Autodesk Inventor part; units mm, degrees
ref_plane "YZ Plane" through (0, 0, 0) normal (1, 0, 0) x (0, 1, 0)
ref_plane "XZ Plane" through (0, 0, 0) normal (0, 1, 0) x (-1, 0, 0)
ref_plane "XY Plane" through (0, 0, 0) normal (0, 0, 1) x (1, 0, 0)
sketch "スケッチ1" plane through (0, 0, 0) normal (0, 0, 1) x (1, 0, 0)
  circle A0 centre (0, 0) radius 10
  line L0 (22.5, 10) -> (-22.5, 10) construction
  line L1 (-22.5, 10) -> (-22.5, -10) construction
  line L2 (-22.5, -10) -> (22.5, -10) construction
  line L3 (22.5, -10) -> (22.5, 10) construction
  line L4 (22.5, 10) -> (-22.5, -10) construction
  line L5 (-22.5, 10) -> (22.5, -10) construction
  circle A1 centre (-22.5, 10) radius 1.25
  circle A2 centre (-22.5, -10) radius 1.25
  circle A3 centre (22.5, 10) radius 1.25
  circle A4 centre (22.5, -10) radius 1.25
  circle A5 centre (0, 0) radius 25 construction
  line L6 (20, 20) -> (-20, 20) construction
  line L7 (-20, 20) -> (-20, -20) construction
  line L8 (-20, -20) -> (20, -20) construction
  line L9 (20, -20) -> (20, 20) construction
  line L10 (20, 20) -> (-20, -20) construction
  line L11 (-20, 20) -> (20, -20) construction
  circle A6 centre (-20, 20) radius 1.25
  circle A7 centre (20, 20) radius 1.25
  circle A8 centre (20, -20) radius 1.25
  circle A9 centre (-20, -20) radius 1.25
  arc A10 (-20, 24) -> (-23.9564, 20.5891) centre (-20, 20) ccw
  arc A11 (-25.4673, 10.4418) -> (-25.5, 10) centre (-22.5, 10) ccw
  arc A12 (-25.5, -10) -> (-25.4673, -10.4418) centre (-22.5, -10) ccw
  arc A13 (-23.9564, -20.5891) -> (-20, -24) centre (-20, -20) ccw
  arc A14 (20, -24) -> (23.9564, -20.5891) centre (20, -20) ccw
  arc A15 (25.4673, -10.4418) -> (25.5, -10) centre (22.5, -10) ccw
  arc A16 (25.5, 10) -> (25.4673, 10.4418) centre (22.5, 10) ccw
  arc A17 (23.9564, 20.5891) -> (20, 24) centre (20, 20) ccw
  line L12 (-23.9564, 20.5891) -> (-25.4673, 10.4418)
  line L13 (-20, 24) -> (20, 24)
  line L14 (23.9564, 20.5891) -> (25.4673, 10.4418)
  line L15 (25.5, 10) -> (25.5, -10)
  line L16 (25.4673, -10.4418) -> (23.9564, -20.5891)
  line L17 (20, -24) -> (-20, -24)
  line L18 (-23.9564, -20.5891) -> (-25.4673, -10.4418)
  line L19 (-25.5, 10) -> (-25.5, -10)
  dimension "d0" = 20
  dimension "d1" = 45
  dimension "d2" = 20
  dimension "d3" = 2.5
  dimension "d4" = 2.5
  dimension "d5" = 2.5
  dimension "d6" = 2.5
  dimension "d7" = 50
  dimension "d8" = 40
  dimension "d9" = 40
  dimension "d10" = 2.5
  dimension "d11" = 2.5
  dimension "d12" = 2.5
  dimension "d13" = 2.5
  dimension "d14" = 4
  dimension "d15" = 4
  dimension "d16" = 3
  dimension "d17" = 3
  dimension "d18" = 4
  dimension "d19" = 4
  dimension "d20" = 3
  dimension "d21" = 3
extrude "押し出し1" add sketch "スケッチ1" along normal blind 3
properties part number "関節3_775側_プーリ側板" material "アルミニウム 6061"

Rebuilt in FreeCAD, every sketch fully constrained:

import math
import FreeCAD as App
import Part
import Sketcher
Q = App.Units.Quantity

doc = App.newDocument("Part")
params = doc.addObject("Spreadsheet::Sheet", "Params")
for row, (alias, value) in enumerate([
    ("sketch1_diameter", "20 mm"),
    ("sketch1_radius", "4 mm"),
    ("sketch1_diameter2", "2.5 mm"),
    ("sketch1_width", "40 mm"),
    ("sketch1_height", "20 mm"),
    ("pad1_length", "3 mm"),
], start=1):
    params.set(f"A{row}", alias)
    params.set(f"B{row}", "=" + value)
    params.setAlias(f"B{row}", alias)

body = doc.addObject("PartDesign::Body", "Body")

sketch1 = doc.addObject("Sketcher::SketchObject", "Sketch")
body.addObject(sketch1)
sketch1.AttachmentSupport = (doc.XY_Plane, [""])
sketch1.MapMode = "FlatFace"
sketch1.addGeometry([
    Part.LineSegment(App.Vector(20, 24, 0), App.Vector(-20, 24, 0)),
    Part.ArcOfCircle(Part.Circle(App.Vector(-20, 20, 0), App.Vector(0, 0, 1), 4), math.radians(90), math.radians(172)),
    Part.LineSegment(App.Vector(-23.96, 20.59, 0), App.Vector(-25.47, 10.44, 0)),
    Part.ArcOfCircle(Part.Circle(App.Vector(-22.5, 10, 0), App.Vector(0, 0, 1), 3), math.radians(171.53), math.radians(180)),
    Part.LineSegment(App.Vector(-25.5, 10, 0), App.Vector(-25.5, -10, 0)),
    Part.ArcOfCircle(Part.Circle(App.Vector(-22.5, -10, 0), App.Vector(0, 0, 1), 3), math.radians(-180), math.radians(-171.54)),
    Part.LineSegment(App.Vector(-25.47, -10.44, 0), App.Vector(-23.96, -20.59, 0)),
    Part.ArcOfCircle(Part.Circle(App.Vector(-20, -20, 0), App.Vector(0, 0, 1), 4), math.radians(-172), math.radians(-90)),
    Part.LineSegment(App.Vector(-20, -24, 0), App.Vector(20, -24, 0)),
    Part.ArcOfCircle(Part.Circle(App.Vector(20, -20, 0), App.Vector(0, 0, 1), 4), math.radians(-90), math.radians(-8)),
    Part.LineSegment(App.Vector(23.96, -20.59, 0), App.Vector(25.47, -10.44, 0)),
    Part.ArcOfCircle(Part.Circle(App.Vector(22.5, -10, 0), App.Vector(0, 0, 1), 3), math.radians(-8.47), math.radians(0)),
    Part.LineSegment(App.Vector(25.5, -10, 0), App.Vector(25.5, 10, 0)),
    Part.ArcOfCircle(Part.Circle(App.Vector(22.5, 10, 0), App.Vector(0, 0, 1), 3), math.radians(0), math.radians(8.46)),
    Part.LineSegment(App.Vector(25.47, 10.44, 0), App.Vector(23.96, 20.59, 0)),
    Part.ArcOfCircle(Part.Circle(App.Vector(20, 20, 0), App.Vector(0, 0, 1), 4), math.radians(8), math.radians(90)),
    Part.Circle(App.Vector(-20, -20, 0), App.Vector(0, 0, 1), 1.25),
    Part.Circle(App.Vector(-22.5, -10, 0), App.Vector(0, 0, 1), 1.25),
    Part.Circle(App.Vector(20, -20, 0), App.Vector(0, 0, 1), 1.25),
    Part.Circle(App.Vector(0, 0, 0), App.Vector(0, 0, 1), 10),
    Part.Circle(App.Vector(22.5, -10, 0), App.Vector(0, 0, 1), 1.25),
    Part.Circle(App.Vector(-22.5, 10, 0), App.Vector(0, 0, 1), 1.25),
    Part.Circle(App.Vector(-20, 20, 0), App.Vector(0, 0, 1), 1.25),
    Part.Circle(App.Vector(22.5, 10, 0), App.Vector(0, 0, 1), 1.25),
    Part.Circle(App.Vector(20, 20, 0), App.Vector(0, 0, 1), 1.25),
], False)
sketch1.addConstraint([
    Sketcher.Constraint("Tangent", 0, 2, 1, 1),
    Sketcher.Constraint("Tangent", 1, 2, 2, 1),
    Sketcher.Constraint("Tangent", 2, 2, 3, 1),
    Sketcher.Constraint("Tangent", 3, 2, 4, 1),
    Sketcher.Constraint("Tangent", 4, 2, 5, 1),
    Sketcher.Constraint("Tangent", 5, 2, 6, 1),
    Sketcher.Constraint("Tangent", 6, 2, 7, 1),
    Sketcher.Constraint("Tangent", 7, 2, 8, 1),
    Sketcher.Constraint("Tangent", 8, 2, 9, 1),
    Sketcher.Constraint("Tangent", 9, 2, 10, 1),
    Sketcher.Constraint("Tangent", 10, 2, 11, 1),
    Sketcher.Constraint("Tangent", 11, 2, 12, 1),
    Sketcher.Constraint("Tangent", 12, 2, 13, 1),
    Sketcher.Constraint("Tangent", 13, 2, 14, 1),
    Sketcher.Constraint("Tangent", 14, 2, 15, 1),
    Sketcher.Constraint("Tangent", 15, 2, 0, 1),
    Sketcher.Constraint("Horizontal", 0),
    Sketcher.Constraint("Vertical", 4),
    Sketcher.Constraint("Horizontal", 8),
    Sketcher.Constraint("Vertical", 12),
    Sketcher.Constraint("Coincident", 19, 3, -1, 1),
    Sketcher.Constraint("Coincident", 16, 3, 7, 3),
    Sketcher.Constraint("Coincident", 18, 3, 9, 3),
    Sketcher.Constraint("Coincident", 22, 3, 1, 3),
    Sketcher.Constraint("Coincident", 24, 3, 15, 3),
    Sketcher.Constraint("Equal", 1, 7),
    Sketcher.Constraint("Equal", 7, 9),
    Sketcher.Constraint("Equal", 3, 11),
    Sketcher.Constraint("Equal", 5, 13),
    Sketcher.Constraint("Equal", 9, 15),
    Sketcher.Constraint("Equal", 16, 17),
    Sketcher.Constraint("Equal", 17, 18),
    Sketcher.Constraint("Equal", 18, 20),
    Sketcher.Constraint("Equal", 20, 21),
    Sketcher.Constraint("Equal", 21, 22),
    Sketcher.Constraint("Equal", 22, 23),
    Sketcher.Constraint("Equal", 23, 24),
    Sketcher.Constraint("Symmetric", 1, 3, 9, 3, -1, 1),
    Sketcher.Constraint("Symmetric", 3, 3, 11, 3, -1, 1),
    Sketcher.Constraint("Symmetric", 20, 3, 21, 3, -1, 1),
    Sketcher.Constraint("Symmetric", 17, 3, 23, 3, -1, 1),
    Sketcher.Constraint("Symmetric", 5, 2, 13, 2, -1, 1),
    Sketcher.Constraint("Symmetric", 17, 3, 20, 3, -2),
    Sketcher.Constraint("Symmetric", 6, 2, 9, 2, -2),
    Sketcher.Constraint("Horizontal", 11, 3, 17, 3),
    Sketcher.Constraint("Horizontal", 13, 3, 21, 3),
    Sketcher.Constraint("Diameter", 19, Q("20 mm")),
    Sketcher.Constraint("Radius", 1, Q("4 mm")),
    Sketcher.Constraint("Diameter", 16, Q("2.5 mm")),
    Sketcher.Constraint("DistanceX", 0, 2, 0, 1, Q("40 mm")),
    Sketcher.Constraint("DistanceY", 4, 2, 4, 1, Q("20 mm")),
    Sketcher.Constraint("DistanceY", -1, 1, 1, 3, Q("20 mm")),
    Sketcher.Constraint("DistanceX", 5, 3, 11, 3, Q("45 mm")),
    Sketcher.Constraint("DistanceX", 3, 2, 21, 3, Q("3 mm")),
    Sketcher.Constraint("DistanceX", 17, 3, 7, 3, Q("2.5 mm")),
])
sketch1.setExpression("Constraints[46]", "Params.sketch1_diameter")
sketch1.setExpression("Constraints[47]", "Params.sketch1_radius")
sketch1.setExpression("Constraints[48]", "Params.sketch1_diameter2")
sketch1.setExpression("Constraints[49]", "Params.sketch1_width")
sketch1.setExpression("Constraints[50]", "Params.sketch1_height")
pad1 = doc.addObject("PartDesign::Pad", "Pad")
body.addObject(pad1)
pad1.Profile = sketch1
pad1.setExpression("Length", "Params.pad1_length")

doc.recompute()
